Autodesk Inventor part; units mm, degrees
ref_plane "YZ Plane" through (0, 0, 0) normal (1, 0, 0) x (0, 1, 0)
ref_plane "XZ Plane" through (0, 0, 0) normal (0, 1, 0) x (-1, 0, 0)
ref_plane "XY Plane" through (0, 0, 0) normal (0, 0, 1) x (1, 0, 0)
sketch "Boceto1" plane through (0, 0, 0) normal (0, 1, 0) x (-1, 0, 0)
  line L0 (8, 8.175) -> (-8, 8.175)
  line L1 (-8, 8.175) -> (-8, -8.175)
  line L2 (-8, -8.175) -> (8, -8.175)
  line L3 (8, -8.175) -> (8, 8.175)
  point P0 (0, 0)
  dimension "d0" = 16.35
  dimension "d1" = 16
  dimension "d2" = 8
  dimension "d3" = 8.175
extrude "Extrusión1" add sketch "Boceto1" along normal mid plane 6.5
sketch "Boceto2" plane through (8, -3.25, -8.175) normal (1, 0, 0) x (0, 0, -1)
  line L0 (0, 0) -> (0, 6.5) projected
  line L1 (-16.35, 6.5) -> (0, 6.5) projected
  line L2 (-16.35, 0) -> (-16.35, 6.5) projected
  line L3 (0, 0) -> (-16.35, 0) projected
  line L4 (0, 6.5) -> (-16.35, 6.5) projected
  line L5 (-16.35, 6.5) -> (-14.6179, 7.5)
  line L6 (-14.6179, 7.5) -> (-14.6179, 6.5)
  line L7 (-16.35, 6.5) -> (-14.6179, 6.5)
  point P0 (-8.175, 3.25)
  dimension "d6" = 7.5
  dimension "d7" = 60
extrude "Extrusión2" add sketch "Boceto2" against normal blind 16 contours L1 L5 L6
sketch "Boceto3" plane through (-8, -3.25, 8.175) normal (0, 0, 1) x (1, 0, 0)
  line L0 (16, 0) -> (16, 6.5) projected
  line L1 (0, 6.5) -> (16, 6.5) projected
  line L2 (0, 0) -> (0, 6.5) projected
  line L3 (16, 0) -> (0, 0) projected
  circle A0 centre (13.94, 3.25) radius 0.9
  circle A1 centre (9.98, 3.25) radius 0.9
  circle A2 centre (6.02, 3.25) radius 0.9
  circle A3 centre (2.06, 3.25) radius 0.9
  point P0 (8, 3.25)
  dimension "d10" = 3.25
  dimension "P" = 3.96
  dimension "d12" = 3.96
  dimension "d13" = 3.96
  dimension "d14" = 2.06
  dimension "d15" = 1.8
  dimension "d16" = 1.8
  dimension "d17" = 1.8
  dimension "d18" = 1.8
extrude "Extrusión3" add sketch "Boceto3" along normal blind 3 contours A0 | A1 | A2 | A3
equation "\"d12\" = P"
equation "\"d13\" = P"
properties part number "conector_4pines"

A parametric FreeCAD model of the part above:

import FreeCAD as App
import Part
import Sketcher

V = App.Vector
Q = App.Units.Quantity


def add_polygon(sketch, points):
    """Adds a closed chain of lines whose ends are joined by coincident constraints."""
    first, n = sketch.GeometryCount, len(points)
    for a, b in zip(points, points[1:] + points[:1]):
        sketch.addGeometry(Part.LineSegment(App.Vector(*a, 0), App.Vector(*b, 0)), False)
    for i in range(n):
        sketch.addConstraint(Sketcher.Constraint("Coincident", first + i, 2, first + (i + 1) % n, 1))

doc = App.newDocument("Part")
body = doc.addObject("PartDesign::Body", "Body")

sketch1 = doc.addObject("Sketcher::SketchObject", "Sketch")
body.addObject(sketch1)
sketch1.AttachmentSupport = (doc.XZ_Plane, [""])
sketch1.MapMode = "FlatFace"
add_polygon(sketch1, [(-8, -8), (-8, 8), (8, 8), (8, -8)])
sketch1.addConstraint([
    Sketcher.Constraint("Vertical", 0),
    Sketcher.Constraint("Horizontal", 1),
    Sketcher.Constraint("Vertical", 2),
    Sketcher.Constraint("Horizontal", 3),
    Sketcher.Constraint("Symmetric", 0, 2, 2, 2, -1, 1),
    Sketcher.Constraint("DistanceX", 1, 1, 1, 2, Q("16 mm")),
    Sketcher.Constraint("DistanceY", 0, 1, 0, 2, Q("16.35 mm")),
])
pad1 = doc.addObject("PartDesign::Pad", "Pad")
body.addObject(pad1)
pad1.Profile = sketch1
pad1.Length = 6.5
pad1.Midplane = True

sketch2 = doc.addObject("Sketcher::SketchObject", "Sketch001")
body.addObject(sketch2)
sketch2.AttachmentSupport = (doc.YZ_Plane, [""])
sketch2.MapMode = "FlatFace"
sketch2.AttachmentOffset = App.Placement(V(0, 0, 8), App.Rotation())
add_polygon(sketch2, [(3.2, 8.2), (3.2, 6.4), (4.2, 6.4)])
sketch2.addConstraint([
    Sketcher.Constraint("Vertical", 0),
    Sketcher.Constraint("Horizontal", 1),
    Sketcher.Constraint("DistanceX", 1, 1, 1, 2, Q("1 mm")),
    Sketcher.Constraint("Angle", 2, Q("119.9993 deg")),
    Sketcher.Constraint("DistanceX", -1, 1, 0, 2, Q("3.25 mm")),
    Sketcher.Constraint("DistanceY", -1, 1, 0, 2, Q("6.443 mm")),
])
pad2 = doc.addObject("PartDesign::Pad", "Pad001")
body.addObject(pad2)
pad2.Profile = sketch2
pad2.Length = 16
pad2.Reversed = True

sketch3 = doc.addObject("Sketcher::SketchObject", "Sketch002")
body.addObject(sketch3)
sketch3.AttachmentSupport = (doc.XY_Plane, [""])
sketch3.MapMode = "FlatFace"
sketch3.AttachmentOffset = App.Placement(V(0, 0, 8.175), App.Rotation())
sketch3.addGeometry([
    Part.Circle(V(5.9, 0, 0), V(0, 0, 1), 0.9),
    Part.Circle(V(2, 0, 0), V(0, 0, 1), 0.9),
    Part.Circle(V(-2, 0, 0), V(0, 0, 1), 0.9),
    Part.Circle(V(-5.9, 0, 0), V(0, 0, 1), 0.9),
], False)
sketch3.addConstraint([
    Sketcher.Constraint("Equal", 0, 1),
    Sketcher.Constraint("Equal", 1, 2),
    Sketcher.Constraint("Equal", 2, 3),
    Sketcher.Constraint("Symmetric", 1, 3, 2, 3, -1, 1),
    Sketcher.Constraint("Symmetric", 0, 3, 3, 3, -1, 1),
    Sketcher.Constraint("PointOnObject", 0, 3, -1),
    Sketcher.Constraint("PointOnObject", 1, 3, -1),
    Sketcher.Constraint("Diameter", 0, Q("1.8 mm")),
    Sketcher.Constraint("DistanceX", 1, 3, 0, 3, Q("3.96 mm")),
    Sketcher.Constraint("DistanceX", 2, 3, 1, 3, Q("3.96 mm")),
])
pad3 = doc.addObject("PartDesign::Pad", "Pad002")
body.addObject(pad3)
pad3.Profile = sketch3
pad3.Length = 3

doc.recompute()
